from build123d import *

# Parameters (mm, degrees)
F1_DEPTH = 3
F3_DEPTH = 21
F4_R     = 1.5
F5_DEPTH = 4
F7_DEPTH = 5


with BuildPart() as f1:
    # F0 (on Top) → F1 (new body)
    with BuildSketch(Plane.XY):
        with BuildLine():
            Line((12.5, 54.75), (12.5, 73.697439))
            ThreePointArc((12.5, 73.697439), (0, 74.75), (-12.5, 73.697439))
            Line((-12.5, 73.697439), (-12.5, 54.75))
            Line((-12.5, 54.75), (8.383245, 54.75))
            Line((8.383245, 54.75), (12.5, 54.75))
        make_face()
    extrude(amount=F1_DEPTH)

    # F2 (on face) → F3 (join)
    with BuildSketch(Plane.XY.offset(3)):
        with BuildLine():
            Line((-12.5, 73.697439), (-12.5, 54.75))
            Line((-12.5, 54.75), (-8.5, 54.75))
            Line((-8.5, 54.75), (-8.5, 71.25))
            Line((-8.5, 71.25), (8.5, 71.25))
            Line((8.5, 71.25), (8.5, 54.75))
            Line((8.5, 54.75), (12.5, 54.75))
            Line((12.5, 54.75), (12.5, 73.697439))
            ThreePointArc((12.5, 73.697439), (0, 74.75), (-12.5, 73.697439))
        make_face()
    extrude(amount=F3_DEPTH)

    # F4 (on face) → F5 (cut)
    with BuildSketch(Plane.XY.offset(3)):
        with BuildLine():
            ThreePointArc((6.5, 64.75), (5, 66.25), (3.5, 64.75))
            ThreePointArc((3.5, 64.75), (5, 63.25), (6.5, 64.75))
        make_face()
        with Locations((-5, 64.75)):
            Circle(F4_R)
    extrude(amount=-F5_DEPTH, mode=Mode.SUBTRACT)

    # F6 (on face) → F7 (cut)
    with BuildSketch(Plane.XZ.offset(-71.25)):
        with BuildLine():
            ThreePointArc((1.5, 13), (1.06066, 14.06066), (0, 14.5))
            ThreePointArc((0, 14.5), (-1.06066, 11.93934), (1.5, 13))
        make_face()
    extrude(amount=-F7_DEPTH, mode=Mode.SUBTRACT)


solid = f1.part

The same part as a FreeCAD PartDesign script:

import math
import FreeCAD as App
import Part
import Sketcher

V = App.Vector
Q = App.Units.Quantity

doc = App.newDocument("Part")
body = doc.addObject("PartDesign::Body", "Body")

# Sketch on XY plane
sketch1 = doc.addObject("Sketcher::SketchObject", "Sketch")
body.addObject(sketch1)
sketch1.AttachmentSupport = (doc.XY_Plane, [""])
sketch1.MapMode = "FlatFace"
sketch1.addGeometry(Part.LineSegment(V(12, 55, 0), V(12, 74, 0)), False)
sketch1.addGeometry(Part.ArcOfCircle(Part.Circle(V(0, 0, 0), V(0, 0, 1), 75), math.radians(80.37), math.radians(99.63)), False)
sketch1.addGeometry(Part.LineSegment(V(-12, 74, 0), V(-12, 55, 0)), False)
sketch1.addGeometry(Part.LineSegment(V(-12, 55, 0), V(12, 55, 0)), False)
sketch1.addConstraint(Sketcher.Constraint("Coincident", 0, 2, 1, 1))
sketch1.addConstraint(Sketcher.Constraint("Coincident", 1, 2, 2, 1))
sketch1.addConstraint(Sketcher.Constraint("Coincident", 2, 2, 3, 1))
sketch1.addConstraint(Sketcher.Constraint("Coincident", 3, 2, 0, 1))
sketch1.addConstraint(Sketcher.Constraint("Vertical", 0))
sketch1.addConstraint(Sketcher.Constraint("Vertical", 2))
sketch1.addConstraint(Sketcher.Constraint("Horizontal", 3))
sketch1.addConstraint(Sketcher.Constraint("Coincident", 1, 3, -1, 1))
sketch1.addConstraint(Sketcher.Constraint("Horizontal", 0, 2, 1, 2))
sketch1.addConstraint(Sketcher.Constraint("DistanceX", 3, 1, 3, 2, Q("25 mm")))
sketch1.addConstraint(Sketcher.Constraint("DistanceY", -1, 1, 2, 2, Q("54.75 mm")))
sketch1.addConstraint(Sketcher.Constraint("Radius", 1, Q("74.750007 mm")))
pad1 = doc.addObject("PartDesign::Pad", "Pad")
body.addObject(pad1)
pad1.Profile = sketch1
pad1.Length = 3

# Sketch on XY plane
sketch2 = doc.addObject("Sketcher::SketchObject", "Sketch001")
body.addObject(sketch2)
sketch2.AttachmentSupport = (doc.XY_Plane, [""])
sketch2.MapMode = "FlatFace"
sketch2.AttachmentOffset = App.Placement(V(0, 0, 3), App.Rotation())
sketch2.addGeometry(Part.LineSegment(V(-12.5, 73.7, 0), V(-12.5, 54.8, 0)), False)
sketch2.addGeometry(Part.LineSegment(V(-12.5, 54.8, 0), V(-8.5, 54.8, 0)), False)
sketch2.addGeometry(Part.LineSegment(V(-8.5, 54.8, 0), V(-8.5, 71.2, 0)), False)
sketch2.addGeometry(Part.LineSegment(V(-8.5, 71.2, 0), V(8.5, 71.2, 0)), False)
sketch2.addGeometry(Part.LineSegment(V(8.5, 71.2, 0), V(8.5, 54.8, 0)), False)
sketch2.addGeometry(Part.LineSegment(V(8.5, 54.8, 0), V(12.5, 54.8, 0)), False)
sketch2.addGeometry(Part.LineSegment(V(12.5, 54.8, 0), V(12.5, 73.7, 0)), False)
sketch2.addGeometry(Part.ArcOfCircle(Part.Circle(V(0, 0, 0), V(0, 0, 1), 74.8), math.radians(80.37), math.radians(99.63)), False)
sketch2.addConstraint(Sketcher.Constraint("Coincident", 0, 2, 1, 1))
sketch2.addConstraint(Sketcher.Constraint("Coincident", 1, 2, 2, 1))
sketch2.addConstraint(Sketcher.Constraint("Coincident", 2, 2, 3, 1))
sketch2.addConstraint(Sketcher.Constraint("Coincident", 3, 2, 4, 1))
sketch2.addConstraint(Sketcher.Constraint("Coincident", 4, 2, 5, 1))
sketch2.addConstraint(Sketcher.Constraint("Coincident", 5, 2, 6, 1))
sketch2.addConstraint(Sketcher.Constraint("Coincident", 6, 2, 7, 1))
sketch2.addConstraint(Sketcher.Constraint("Coincident", 7, 2, 0, 1))
sketch2.addConstraint(Sketcher.Constraint("Vertical", 0))
sketch2.addConstraint(Sketcher.Constraint("Horizontal", 1))
sketch2.addConstraint(Sketcher.Constraint("Vertical", 2))
sketch2.addConstraint(Sketcher.Constraint("Horizontal", 3))
sketch2.addConstraint(Sketcher.Constraint("Vertical", 4))
sketch2.addConstraint(Sketcher.Constraint("Horizontal", 5))
sketch2.addConstraint(Sketcher.Constraint("Vertical", 6))
sketch2.addConstraint(Sketcher.Constraint("Coincident", 7, 3, -1, 1))
sketch2.addConstraint(Sketcher.Constraint("Symmetric", 1, 2, 4, 2, -2))
sketch2.addConstraint(Sketcher.Constraint("Horizontal", 6, 2, 7, 2))
sketch2.addConstraint(Sketcher.Constraint("DistanceX", 1, 1, 1, 2, Q("4 mm")))
sketch2.addConstraint(Sketcher.Constraint("DistanceX", 3, 1, 3, 2, Q("17 mm")))
sketch2.addConstraint(Sketcher.Constraint("DistanceY", 2, 1, 2, 2, Q("16.5 mm")))
sketch2.addConstraint(Sketcher.Constraint("DistanceY", -1, 1, 0, 2, Q("54.75 mm")))
sketch2.addConstraint(Sketcher.Constraint("Radius", 7, Q("74.750007 mm")))
pad2 = doc.addObject("PartDesign::Pad", "Pad001")
body.addObject(pad2)
pad2.Profile = sketch2
pad2.Length = 21

# Sketch on XY plane
sketch3 = doc.addObject("Sketcher::SketchObject", "Sketch002")
body.addObject(sketch3)
sketch3.AttachmentSupport = (doc.XY_Plane, [""])
sketch3.MapMode = "FlatFace"
sketch3.AttachmentOffset = App.Placement(V(0, 0, 3), App.Rotation())
sketch3.addGeometry(Part.Circle(V(5, 64.8, 0), V(0, 0, 1), 1.5), False)
sketch3.addGeometry(Part.Circle(V(-5, 64.8, 0), V(0, 0, 1), 1.5), False)
sketch3.addConstraint(Sketcher.Constraint("Equal", 0, 1))
sketch3.addConstraint(Sketcher.Constraint("Symmetric", 0, 3, 1, 3, -2))
sketch3.addConstraint(Sketcher.Constraint("Diameter", 0, Q("3 mm")))
sketch3.addConstraint(Sketcher.Constraint("DistanceX", -1, 1, 0, 3, Q("5 mm")))
sketch3.addConstraint(Sketcher.Constraint("DistanceY", -1, 1, 0, 3, Q("64.75 mm")))
pocket1 = doc.addObject("PartDesign::Pocket", "Pocket")
body.addObject(pocket1)
pocket1.Profile = sketch3
pocket1.Length = 4

# Sketch on XZ plane
sketch4 = doc.addObject("Sketcher::SketchObject", "Sketch003")
body.addObject(sketch4)
sketch4.AttachmentSupport = (doc.XZ_Plane, [""])
sketch4.MapMode = "FlatFace"
sketch4.AttachmentOffset = App.Placement(V(0, 0, -71.25), App.Rotation())
sketch4.addGeometry(Part.ArcOfCircle(Part.Circle(V(0, 13, 0), V(0, 0, 1), 1.5), math.radians(0), math.radians(90)), False)
sketch4.addGeometry(Part.ArcOfCircle(Part.Circle(V(0, 13, 0), V(0, 0, 1), 1.5), math.radians(90), math.radians(360)), False)
sketch4.addConstraint(Sketcher.Constraint("Tangent", 0, 1, 1, 2))
sketch4.addConstraint(Sketcher.Constraint("Coincident", 1, 1, 0, 2))
sketch4.addConstraint(Sketcher.Constraint("PointOnObject", 0, 3, -2))
sketch4.addConstraint(Sketcher.Constraint("PointOnObject", 1, 1, -2))
sketch4.addConstraint(Sketcher.Constraint("Horizontal", 1, 3, 0, 1))
sketch4.addConstraint(Sketcher.Constraint("Radius", 0, Q("1.500001 mm")))
sketch4.addConstraint(Sketcher.Constraint("DistanceY", -1, 1, 0, 3, Q("12.999999 mm")))
pocket2 = doc.addObject("PartDesign::Pocket", "Pocket001")
body.addObject(pocket2)
pocket2.Profile = sketch4
pocket2.Length = 5

doc.recompute()
